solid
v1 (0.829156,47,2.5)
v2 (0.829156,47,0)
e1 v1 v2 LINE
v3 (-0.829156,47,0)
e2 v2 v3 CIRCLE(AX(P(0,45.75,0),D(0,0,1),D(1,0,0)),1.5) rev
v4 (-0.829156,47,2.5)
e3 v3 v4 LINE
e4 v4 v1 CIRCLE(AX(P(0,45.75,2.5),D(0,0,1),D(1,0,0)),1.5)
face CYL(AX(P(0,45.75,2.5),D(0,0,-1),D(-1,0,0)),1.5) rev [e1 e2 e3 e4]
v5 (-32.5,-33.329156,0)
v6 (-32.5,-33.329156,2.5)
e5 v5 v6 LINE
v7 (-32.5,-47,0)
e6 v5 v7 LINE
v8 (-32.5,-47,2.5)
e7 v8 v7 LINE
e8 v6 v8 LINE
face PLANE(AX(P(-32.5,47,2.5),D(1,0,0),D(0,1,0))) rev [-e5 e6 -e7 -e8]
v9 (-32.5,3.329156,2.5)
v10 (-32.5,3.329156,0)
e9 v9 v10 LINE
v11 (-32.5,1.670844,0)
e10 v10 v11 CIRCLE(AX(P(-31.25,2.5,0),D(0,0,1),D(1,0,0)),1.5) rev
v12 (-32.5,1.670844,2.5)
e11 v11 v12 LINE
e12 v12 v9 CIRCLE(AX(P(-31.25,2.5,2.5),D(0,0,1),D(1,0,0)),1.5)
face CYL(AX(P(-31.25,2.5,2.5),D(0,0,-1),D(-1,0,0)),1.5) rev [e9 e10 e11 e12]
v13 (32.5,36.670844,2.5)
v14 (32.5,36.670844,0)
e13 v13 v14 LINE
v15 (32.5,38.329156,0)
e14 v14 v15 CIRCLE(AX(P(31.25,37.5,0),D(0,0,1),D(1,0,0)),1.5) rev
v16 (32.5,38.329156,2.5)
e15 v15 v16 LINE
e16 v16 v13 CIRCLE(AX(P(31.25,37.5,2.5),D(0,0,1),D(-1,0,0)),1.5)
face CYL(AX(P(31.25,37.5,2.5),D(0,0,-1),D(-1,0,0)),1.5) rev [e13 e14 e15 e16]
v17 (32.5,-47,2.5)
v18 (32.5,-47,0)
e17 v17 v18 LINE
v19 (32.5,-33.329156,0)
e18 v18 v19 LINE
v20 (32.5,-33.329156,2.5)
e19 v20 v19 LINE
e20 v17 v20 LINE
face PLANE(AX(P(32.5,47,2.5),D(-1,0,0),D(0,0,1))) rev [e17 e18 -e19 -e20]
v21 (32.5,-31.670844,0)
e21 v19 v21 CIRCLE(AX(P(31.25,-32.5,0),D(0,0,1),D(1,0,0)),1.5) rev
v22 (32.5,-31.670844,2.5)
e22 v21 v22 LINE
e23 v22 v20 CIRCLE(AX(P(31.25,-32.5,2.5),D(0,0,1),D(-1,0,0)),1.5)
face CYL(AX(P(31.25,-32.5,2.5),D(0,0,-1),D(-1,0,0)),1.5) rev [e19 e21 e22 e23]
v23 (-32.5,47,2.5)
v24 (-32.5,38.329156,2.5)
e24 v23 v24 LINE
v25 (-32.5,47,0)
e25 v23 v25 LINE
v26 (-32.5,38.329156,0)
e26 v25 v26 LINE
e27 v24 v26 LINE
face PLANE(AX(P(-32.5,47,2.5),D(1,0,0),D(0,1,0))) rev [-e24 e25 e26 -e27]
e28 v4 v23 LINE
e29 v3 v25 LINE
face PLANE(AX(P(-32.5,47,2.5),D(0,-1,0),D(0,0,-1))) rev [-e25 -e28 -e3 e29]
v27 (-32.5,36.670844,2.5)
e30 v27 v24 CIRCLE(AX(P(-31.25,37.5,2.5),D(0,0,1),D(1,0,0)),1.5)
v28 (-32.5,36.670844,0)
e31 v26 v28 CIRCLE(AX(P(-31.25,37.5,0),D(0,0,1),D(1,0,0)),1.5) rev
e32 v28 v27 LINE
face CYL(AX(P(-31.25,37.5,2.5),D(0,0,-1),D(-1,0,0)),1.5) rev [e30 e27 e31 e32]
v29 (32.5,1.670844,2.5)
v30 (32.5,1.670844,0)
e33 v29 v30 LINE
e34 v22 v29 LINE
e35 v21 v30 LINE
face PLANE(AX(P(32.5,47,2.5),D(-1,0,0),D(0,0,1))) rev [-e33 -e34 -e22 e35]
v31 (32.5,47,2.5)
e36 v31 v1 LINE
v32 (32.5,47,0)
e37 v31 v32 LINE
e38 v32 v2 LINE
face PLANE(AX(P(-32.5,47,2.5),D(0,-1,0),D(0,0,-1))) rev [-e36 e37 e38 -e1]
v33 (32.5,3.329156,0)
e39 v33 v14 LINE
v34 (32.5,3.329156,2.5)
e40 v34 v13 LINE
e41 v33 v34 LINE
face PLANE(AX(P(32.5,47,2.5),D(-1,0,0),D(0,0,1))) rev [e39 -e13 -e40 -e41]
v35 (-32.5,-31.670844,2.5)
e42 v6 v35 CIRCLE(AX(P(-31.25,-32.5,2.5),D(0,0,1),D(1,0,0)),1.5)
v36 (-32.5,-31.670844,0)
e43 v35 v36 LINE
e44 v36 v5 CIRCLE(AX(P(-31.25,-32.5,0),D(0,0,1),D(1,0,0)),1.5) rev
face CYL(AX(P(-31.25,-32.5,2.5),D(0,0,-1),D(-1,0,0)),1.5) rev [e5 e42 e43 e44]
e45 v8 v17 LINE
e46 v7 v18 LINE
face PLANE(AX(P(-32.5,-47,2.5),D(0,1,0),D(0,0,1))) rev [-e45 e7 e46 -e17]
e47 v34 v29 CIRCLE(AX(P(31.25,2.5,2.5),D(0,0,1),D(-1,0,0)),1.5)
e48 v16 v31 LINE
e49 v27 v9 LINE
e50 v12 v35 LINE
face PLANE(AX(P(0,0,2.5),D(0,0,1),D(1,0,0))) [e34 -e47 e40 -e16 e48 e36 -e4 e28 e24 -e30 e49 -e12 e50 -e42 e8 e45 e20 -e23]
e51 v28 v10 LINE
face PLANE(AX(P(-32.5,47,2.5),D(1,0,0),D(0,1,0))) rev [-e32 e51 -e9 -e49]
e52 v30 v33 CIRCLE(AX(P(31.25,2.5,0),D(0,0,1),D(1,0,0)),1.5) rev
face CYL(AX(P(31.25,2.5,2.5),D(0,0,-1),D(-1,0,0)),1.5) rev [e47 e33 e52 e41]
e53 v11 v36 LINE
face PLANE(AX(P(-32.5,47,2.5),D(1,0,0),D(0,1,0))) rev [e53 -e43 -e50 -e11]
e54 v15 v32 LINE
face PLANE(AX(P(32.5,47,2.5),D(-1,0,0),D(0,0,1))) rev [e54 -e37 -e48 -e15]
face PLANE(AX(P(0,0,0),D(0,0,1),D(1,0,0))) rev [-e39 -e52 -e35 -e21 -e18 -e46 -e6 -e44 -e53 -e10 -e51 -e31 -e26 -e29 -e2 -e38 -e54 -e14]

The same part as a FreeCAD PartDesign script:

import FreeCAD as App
import Part
import Sketcher


def add_polygon(sketch, points):
    """Adds a closed chain of lines whose ends are joined by coincident constraints."""
    first, n = sketch.GeometryCount, len(points)
    for a, b in zip(points, points[1:] + points[:1]):
        sketch.addGeometry(Part.LineSegment(App.Vector(*a, 0), App.Vector(*b, 0)), False)
    for i in range(n):
        sketch.addConstraint(Sketcher.Constraint("Coincident", first + i, 2, first + (i + 1) % n, 1))

doc = App.newDocument("Part")
params = doc.addObject("Spreadsheet::Sheet", "Params")
for row, (alias, value) in enumerate([
    ("sketch1_width", "65 mm"),
    ("sketch1_height", "94 mm"),
    ("pad1_length", "2.5 mm"),
    ("sketch2_diameter", "3 mm"),
    ("pocket1_length", "4.5 mm"),
    ("linearpattern_pitch", "35 mm"),
    ("sketch3_diameter", "3 mm"),
], start=1):
    params.set(f"A{row}", alias)
    params.set(f"B{row}", "=" + value)
    params.setAlias(f"B{row}", alias)

body = doc.addObject("PartDesign::Body", "Body")

# Sketch on XY plane
sketch1 = doc.addObject("Sketcher::SketchObject", "Sketch")
body.addObject(sketch1)
sketch1.AttachmentSupport = (doc.XY_Plane, [""])
sketch1.MapMode = "FlatFace"
add_polygon(sketch1, [(-32, 47), (-32, -47), (32, -47), (32, 47)])  # lines 0-3
sketch1.addConstraint([
    Sketcher.Constraint("Vertical", 0),
    Sketcher.Constraint("Horizontal", 1),
    Sketcher.Constraint("Vertical", 2),
    Sketcher.Constraint("Horizontal", 3),
    Sketcher.Constraint("Symmetric", 0, 2, 2, 2, -1, 1),
    Sketcher.Constraint("DistanceX", 1, 1, 1, 2, 65.0),
    Sketcher.Constraint("DistanceY", 0, 2, 0, 1, 94.0),
])
sketch1.setExpression("Constraints[9]", "Params.sketch1_width")
sketch1.setExpression("Constraints[10]", "Params.sketch1_height")
pad1 = doc.addObject("PartDesign::Pad", "Pad")
body.addObject(pad1)
pad1.Profile = sketch1
pad1.setExpression("Length", "Params.pad1_length")

# Sketch on XY plane
sketch2 = doc.addObject("Sketcher::SketchObject", "Sketch001")
body.addObject(sketch2)
sketch2.AttachmentSupport = (doc.XY_Plane, [""])
sketch2.MapMode = "FlatFace"
sketch2.AttachmentOffset = App.Placement(App.Vector(0, 0, -1), App.Rotation())
sketch2.addGeometry([
    Part.Circle(App.Vector(-31.2, 37.5, 0), App.Vector(0, 0, 1), 1.5),
    Part.Circle(App.Vector(31.2, 37.5, 0), App.Vector(0, 0, 1), 1.5),
], False)
sketch2.addConstraint([
    Sketcher.Constraint("Equal", 0, 1),
    Sketcher.Constraint("Symmetric", 0, 3, 1, 3, -2),
    Sketcher.Constraint("Diameter", 0, 3.0),
    Sketcher.Constraint("DistanceY", -1, 1, 0, 3, 37.5),
    Sketcher.Constraint("DistanceX", 0, 3, 1, 3, 62.5),
])
sketch2.setExpression("Constraints[2]", "Params.sketch2_diameter")
pocket1 = doc.addObject("PartDesign::Pocket", "Pocket")
body.addObject(pocket1)
pocket1.Profile = sketch2
pocket1.setExpression("Length", "Params.pocket1_length")
pocket1.Reversed = True
doc.recompute()

linearpattern = doc.addObject("PartDesign::LinearPattern", "LinearPattern")
body.addObject(linearpattern)
linearpattern.Originals = [pocket1]
linearpattern.Direction = (doc.Y_Axis, [""])
linearpattern.Mode = "offset"
linearpattern.setExpression("Offset", "Params.linearpattern_pitch")
linearpattern.Occurrences = 3
linearpattern.Reversed = True
body.Tip = linearpattern

# Sketch on XY plane
sketch3 = doc.addObject("Sketcher::SketchObject", "Sketch002")
body.addObject(sketch3)
sketch3.AttachmentSupport = (doc.XY_Plane, [""])
sketch3.MapMode = "FlatFace"
sketch3.addGeometry(Part.Circle(App.Vector(0, 45.8, 0), App.Vector(0, 0, 1), 1.5), False)
sketch3.addConstraint([
    Sketcher.Constraint("PointOnObject", 0, 3, -2),
    Sketcher.Constraint("Diameter", 0, 3.0),
    Sketcher.Constraint("DistanceY", -1, 1, 0, 3, 45.75),
])
sketch3.setExpression("Constraints[1]", "Params.sketch3_diameter")
pocket2 = doc.addObject("PartDesign::Pocket", "Pocket001")
body.addObject(pocket2)
pocket2.Profile = sketch3
pocket2.Type = "ThroughAll"
pocket2.Midplane = True

doc.recompute()
